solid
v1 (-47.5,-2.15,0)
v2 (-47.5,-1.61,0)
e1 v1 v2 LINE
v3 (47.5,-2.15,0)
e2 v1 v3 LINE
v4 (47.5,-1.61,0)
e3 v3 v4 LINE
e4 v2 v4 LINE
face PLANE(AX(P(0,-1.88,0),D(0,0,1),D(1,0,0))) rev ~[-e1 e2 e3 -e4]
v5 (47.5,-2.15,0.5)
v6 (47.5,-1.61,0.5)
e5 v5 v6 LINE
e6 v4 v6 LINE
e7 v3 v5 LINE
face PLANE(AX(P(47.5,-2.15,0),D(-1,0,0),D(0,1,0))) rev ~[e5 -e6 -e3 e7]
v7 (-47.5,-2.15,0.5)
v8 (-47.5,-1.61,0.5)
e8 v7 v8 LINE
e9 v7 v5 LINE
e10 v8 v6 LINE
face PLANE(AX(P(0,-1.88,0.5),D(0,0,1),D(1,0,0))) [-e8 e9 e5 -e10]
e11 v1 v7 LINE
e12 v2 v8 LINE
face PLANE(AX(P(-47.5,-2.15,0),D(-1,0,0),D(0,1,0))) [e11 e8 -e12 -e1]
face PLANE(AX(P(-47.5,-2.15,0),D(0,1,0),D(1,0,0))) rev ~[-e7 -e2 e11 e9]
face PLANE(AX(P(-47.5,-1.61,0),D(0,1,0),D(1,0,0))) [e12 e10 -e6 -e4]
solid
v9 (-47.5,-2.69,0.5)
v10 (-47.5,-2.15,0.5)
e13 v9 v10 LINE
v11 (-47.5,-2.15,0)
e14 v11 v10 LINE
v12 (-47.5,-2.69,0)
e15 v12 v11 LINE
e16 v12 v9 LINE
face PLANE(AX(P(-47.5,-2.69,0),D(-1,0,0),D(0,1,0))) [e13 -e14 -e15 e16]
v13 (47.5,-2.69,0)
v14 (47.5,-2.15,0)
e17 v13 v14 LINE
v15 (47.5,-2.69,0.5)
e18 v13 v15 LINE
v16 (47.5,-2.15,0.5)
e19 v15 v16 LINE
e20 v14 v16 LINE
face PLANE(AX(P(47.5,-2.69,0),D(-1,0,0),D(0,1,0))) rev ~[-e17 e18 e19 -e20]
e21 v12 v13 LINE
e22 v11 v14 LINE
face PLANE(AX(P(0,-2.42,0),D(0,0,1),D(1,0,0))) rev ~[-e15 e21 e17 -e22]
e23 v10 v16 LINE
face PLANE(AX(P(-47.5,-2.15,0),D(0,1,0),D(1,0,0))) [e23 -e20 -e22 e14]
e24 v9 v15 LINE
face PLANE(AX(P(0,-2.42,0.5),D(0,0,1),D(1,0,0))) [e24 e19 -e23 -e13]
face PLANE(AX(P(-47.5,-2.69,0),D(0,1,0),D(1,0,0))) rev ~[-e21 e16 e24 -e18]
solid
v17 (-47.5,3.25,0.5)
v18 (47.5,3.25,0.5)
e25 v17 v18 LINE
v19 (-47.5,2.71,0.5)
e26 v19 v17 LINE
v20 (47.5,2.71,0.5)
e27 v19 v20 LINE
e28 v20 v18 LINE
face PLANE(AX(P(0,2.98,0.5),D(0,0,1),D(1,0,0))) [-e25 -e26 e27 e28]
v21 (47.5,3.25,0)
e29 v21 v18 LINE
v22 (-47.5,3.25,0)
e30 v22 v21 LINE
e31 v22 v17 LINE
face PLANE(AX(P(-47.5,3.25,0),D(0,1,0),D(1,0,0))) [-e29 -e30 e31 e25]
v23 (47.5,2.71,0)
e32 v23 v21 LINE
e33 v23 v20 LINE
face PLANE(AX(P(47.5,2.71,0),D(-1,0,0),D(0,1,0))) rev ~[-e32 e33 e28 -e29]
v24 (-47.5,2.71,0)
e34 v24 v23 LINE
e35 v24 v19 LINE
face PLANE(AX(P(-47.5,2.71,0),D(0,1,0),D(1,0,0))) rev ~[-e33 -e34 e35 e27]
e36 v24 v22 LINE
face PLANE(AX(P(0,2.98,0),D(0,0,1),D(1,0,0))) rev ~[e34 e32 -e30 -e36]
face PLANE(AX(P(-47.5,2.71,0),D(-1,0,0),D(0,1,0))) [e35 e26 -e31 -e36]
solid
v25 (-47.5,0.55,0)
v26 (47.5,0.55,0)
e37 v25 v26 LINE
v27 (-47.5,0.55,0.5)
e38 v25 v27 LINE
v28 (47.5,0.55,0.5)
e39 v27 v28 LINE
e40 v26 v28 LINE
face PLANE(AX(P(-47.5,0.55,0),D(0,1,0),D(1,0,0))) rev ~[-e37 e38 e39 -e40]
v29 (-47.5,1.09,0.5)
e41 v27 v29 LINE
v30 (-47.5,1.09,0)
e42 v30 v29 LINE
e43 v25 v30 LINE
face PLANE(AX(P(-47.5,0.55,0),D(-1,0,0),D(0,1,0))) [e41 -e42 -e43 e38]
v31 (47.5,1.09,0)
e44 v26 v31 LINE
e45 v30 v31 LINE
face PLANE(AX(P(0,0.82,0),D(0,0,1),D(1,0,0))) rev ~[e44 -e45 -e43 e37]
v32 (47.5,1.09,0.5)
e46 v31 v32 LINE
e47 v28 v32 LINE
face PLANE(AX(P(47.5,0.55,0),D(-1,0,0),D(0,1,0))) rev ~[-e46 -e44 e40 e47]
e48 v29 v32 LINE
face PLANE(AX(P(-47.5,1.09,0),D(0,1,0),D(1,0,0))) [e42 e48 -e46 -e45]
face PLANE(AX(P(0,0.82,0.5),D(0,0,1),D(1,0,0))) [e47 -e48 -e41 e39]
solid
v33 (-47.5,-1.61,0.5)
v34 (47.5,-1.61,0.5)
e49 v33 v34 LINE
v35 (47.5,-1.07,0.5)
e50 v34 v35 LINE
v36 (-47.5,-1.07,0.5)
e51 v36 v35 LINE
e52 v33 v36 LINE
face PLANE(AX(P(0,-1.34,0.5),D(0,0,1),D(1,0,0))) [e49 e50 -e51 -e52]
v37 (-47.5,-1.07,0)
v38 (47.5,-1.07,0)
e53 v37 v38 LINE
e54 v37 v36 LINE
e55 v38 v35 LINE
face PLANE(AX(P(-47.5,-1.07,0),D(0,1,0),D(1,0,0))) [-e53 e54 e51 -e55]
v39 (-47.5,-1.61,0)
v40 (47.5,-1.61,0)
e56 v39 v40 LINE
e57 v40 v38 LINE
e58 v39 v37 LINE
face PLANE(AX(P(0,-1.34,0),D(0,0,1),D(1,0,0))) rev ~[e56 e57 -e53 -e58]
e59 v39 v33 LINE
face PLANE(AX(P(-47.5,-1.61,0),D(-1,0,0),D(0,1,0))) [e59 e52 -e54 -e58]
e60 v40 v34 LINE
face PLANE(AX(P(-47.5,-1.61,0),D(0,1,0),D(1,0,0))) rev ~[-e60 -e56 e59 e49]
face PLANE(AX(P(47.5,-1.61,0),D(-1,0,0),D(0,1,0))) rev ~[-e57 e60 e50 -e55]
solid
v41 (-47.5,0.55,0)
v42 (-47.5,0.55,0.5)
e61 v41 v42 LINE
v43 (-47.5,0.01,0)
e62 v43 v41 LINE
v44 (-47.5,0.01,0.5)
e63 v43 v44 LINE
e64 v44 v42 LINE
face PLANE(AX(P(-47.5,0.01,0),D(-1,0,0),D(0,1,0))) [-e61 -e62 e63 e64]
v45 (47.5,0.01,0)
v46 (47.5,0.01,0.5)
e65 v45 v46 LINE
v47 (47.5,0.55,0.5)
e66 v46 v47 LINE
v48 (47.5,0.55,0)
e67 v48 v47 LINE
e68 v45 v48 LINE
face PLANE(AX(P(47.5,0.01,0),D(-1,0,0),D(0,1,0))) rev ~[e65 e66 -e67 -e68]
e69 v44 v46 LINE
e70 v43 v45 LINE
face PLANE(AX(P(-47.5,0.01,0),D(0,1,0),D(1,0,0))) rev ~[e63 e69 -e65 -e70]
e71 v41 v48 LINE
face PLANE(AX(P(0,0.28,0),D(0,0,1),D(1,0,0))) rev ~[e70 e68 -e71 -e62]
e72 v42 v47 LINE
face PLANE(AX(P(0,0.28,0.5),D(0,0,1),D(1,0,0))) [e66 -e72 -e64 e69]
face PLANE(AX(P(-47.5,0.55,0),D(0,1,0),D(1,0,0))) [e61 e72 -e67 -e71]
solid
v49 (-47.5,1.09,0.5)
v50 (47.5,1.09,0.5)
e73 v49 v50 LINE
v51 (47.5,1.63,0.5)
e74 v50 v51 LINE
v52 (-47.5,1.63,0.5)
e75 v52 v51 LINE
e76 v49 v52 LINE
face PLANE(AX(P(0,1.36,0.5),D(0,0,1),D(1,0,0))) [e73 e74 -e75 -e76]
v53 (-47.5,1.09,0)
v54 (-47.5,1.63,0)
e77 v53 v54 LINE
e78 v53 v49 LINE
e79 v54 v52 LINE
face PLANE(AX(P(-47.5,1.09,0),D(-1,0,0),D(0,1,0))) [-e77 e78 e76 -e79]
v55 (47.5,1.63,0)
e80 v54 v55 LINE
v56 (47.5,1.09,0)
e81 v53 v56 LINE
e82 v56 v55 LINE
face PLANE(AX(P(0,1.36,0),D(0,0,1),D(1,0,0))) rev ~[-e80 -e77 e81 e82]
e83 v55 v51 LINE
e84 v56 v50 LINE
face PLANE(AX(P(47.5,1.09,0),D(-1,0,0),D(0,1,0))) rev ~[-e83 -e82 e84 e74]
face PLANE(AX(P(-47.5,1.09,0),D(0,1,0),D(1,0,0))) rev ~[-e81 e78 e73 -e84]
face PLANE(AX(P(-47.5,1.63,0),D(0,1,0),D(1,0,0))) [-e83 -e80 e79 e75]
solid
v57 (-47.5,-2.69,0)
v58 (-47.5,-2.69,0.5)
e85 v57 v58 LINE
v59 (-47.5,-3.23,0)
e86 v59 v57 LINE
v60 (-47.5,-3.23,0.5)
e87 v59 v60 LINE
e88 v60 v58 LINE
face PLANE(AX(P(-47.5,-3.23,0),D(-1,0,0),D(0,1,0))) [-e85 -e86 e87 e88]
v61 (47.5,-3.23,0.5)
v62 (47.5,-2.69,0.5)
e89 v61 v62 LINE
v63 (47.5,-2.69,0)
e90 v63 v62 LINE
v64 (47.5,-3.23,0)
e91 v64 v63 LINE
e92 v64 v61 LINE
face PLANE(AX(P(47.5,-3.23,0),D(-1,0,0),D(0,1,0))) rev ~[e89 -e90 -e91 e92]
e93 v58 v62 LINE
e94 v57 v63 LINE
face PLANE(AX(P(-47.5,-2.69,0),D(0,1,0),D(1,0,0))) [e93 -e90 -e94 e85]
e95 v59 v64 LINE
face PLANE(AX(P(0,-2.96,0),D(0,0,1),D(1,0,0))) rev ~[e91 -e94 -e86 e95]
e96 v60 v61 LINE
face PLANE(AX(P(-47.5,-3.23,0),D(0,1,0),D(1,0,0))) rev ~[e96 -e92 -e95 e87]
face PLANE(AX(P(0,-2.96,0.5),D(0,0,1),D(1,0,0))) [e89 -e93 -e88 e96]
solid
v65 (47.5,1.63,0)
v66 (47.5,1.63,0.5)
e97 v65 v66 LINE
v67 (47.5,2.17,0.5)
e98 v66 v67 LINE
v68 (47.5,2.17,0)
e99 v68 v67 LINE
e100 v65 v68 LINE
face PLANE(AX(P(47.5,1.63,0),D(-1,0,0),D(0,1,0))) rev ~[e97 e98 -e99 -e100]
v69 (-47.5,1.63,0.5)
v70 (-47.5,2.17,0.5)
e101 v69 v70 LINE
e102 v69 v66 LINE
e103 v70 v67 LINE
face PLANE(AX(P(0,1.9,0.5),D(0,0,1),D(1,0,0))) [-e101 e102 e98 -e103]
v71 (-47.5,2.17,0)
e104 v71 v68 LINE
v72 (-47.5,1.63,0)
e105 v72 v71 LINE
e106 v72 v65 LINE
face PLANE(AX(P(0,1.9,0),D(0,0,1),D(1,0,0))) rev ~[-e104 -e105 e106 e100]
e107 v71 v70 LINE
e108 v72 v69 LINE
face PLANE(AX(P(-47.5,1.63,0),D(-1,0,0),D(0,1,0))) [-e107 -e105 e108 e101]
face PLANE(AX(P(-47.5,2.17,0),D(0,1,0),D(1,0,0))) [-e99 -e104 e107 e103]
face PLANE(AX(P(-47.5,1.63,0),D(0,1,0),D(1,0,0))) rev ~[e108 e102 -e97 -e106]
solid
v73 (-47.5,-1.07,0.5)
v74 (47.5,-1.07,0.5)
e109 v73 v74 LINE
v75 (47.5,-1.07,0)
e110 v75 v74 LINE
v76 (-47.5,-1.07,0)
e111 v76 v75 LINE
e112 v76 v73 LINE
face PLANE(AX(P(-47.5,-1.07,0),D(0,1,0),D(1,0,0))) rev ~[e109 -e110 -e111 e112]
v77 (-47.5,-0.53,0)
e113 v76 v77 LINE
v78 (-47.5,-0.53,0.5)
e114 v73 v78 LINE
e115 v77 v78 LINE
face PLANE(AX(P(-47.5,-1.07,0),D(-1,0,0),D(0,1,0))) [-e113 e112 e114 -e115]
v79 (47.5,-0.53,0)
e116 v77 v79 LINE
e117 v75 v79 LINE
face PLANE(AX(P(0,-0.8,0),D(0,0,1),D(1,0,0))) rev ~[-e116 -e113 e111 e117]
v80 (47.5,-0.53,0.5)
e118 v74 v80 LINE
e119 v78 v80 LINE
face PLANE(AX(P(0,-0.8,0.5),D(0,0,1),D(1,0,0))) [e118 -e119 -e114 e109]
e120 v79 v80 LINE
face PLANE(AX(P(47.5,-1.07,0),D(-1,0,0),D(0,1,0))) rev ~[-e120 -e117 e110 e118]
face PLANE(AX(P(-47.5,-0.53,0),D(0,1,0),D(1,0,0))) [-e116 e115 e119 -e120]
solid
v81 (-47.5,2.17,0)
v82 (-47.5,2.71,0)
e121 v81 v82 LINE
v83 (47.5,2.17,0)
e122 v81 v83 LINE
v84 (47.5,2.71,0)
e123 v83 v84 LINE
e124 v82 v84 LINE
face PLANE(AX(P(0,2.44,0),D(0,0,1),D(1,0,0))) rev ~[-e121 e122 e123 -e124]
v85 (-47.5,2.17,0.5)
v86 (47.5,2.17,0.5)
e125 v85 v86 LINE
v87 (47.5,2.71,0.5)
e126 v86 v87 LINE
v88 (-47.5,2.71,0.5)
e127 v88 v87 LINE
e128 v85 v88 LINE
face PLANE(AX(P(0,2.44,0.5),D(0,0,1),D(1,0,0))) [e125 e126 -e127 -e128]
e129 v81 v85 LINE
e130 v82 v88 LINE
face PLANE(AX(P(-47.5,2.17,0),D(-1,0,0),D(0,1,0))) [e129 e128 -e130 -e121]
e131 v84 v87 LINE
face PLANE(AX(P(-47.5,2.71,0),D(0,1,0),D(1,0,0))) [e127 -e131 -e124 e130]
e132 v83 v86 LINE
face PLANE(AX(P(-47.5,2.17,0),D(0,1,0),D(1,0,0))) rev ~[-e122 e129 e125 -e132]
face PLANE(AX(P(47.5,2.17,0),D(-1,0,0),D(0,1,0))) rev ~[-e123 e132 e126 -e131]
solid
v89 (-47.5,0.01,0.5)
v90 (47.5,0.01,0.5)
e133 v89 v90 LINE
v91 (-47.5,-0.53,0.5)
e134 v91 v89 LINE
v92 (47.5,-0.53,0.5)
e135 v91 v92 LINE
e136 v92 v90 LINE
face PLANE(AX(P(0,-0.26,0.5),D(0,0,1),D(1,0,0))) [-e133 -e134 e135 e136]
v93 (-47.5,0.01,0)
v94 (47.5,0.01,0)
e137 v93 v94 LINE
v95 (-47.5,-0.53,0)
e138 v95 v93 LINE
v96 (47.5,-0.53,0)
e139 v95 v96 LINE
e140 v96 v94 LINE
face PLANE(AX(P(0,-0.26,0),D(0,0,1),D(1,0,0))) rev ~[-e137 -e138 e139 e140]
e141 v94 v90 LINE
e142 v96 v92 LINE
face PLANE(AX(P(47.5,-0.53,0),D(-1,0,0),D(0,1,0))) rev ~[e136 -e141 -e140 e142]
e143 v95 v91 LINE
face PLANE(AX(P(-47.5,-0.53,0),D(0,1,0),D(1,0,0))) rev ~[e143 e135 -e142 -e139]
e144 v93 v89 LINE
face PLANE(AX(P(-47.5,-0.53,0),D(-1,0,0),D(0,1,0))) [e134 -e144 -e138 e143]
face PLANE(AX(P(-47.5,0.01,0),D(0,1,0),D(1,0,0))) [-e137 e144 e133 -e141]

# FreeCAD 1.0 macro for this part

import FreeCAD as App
import Part
import Sketcher
from FreeCAD import Vector

doc = App.newDocument("Part")
body = doc.addObject("PartDesign::Body", "Body")
body.AllowCompound = True

# Sketch on XY plane
sketch1 = body.newObject("Sketcher::SketchObject", "Sketch")
sketch1.AttachmentSupport = (doc.getObject("XY_Plane"), [""])
sketch1.MapMode = "FlatFace"
sketch1.addGeometry([
    Part.LineSegment(Vector(-47.5, 3.2, 0), Vector(-47.5, 2.7, 0)),  # 0
    Part.LineSegment(Vector(-47.5, 2.7, 0), Vector(47.5, 2.7, 0)),  # 1
    Part.LineSegment(Vector(47.5, 2.7, 0), Vector(47.5, 3.2, 0)),  # 2
    Part.LineSegment(Vector(47.5, 3.2, 0), Vector(-47.5, 3.2, 0)),  # 3
    Part.LineSegment(Vector(-47.5, 2.2, 0), Vector(-47.5, 1.6, 0)),  # 4
    Part.LineSegment(Vector(-47.5, 1.6, 0), Vector(47.5, 1.6, 0)),  # 5
    Part.LineSegment(Vector(47.5, 1.6, 0), Vector(47.5, 2.2, 0)),  # 6
    Part.LineSegment(Vector(47.5, 2.2, 0), Vector(-47.5, 2.2, 0)),  # 7
    Part.LineSegment(Vector(-47.5, 1.1, 0), Vector(-47.5, 0.6, 0)),  # 8
    Part.LineSegment(Vector(-47.5, 0.6, 0), Vector(47.5, 0.6, 0)),  # 9
    Part.LineSegment(Vector(47.5, 0.6, 0), Vector(47.5, 1.1, 0)),  # 10
    Part.LineSegment(Vector(47.5, 1.1, 0), Vector(-47.5, 1.1, 0)),  # 11
    Part.LineSegment(Vector(-47.5, 0, 0), Vector(-47.5, -0.5, 0)),  # 12
    Part.LineSegment(Vector(-47.5, -0.5, 0), Vector(47.5, -0.5, 0)),  # 13
    Part.LineSegment(Vector(47.5, -0.5, 0), Vector(47.5, 0, 0)),  # 14
    Part.LineSegment(Vector(47.5, 0, 0), Vector(-47.5, 0, 0)),  # 15
    Part.LineSegment(Vector(-47.5, -1.1, 0), Vector(-47.5, -1.6, 0)),  # 16
    Part.LineSegment(Vector(-47.5, -1.6, 0), Vector(47.5, -1.6, 0)),  # 17
    Part.LineSegment(Vector(47.5, -1.6, 0), Vector(47.5, -1.1, 0)),  # 18
    Part.LineSegment(Vector(47.5, -1.1, 0), Vector(-47.5, -1.1, 0)),  # 19
    Part.LineSegment(Vector(-47.5, -2.1, 0), Vector(-47.5, -2.7, 0)),  # 20
    Part.LineSegment(Vector(-47.5, -2.7, 0), Vector(47.5, -2.7, 0)),  # 21
    Part.LineSegment(Vector(47.5, -2.7, 0), Vector(47.5, -2.1, 0)),  # 22
    Part.LineSegment(Vector(47.5, -2.1, 0), Vector(-47.5, -2.1, 0)),  # 23
], False)
sketch1.addConstraint([
    Sketcher.Constraint("Coincident", 0, 2, 1, 1),
    Sketcher.Constraint("Coincident", 1, 2, 2, 1),
    Sketcher.Constraint("Coincident", 2, 2, 3, 1),
    Sketcher.Constraint("Coincident", 3, 2, 0, 1),
    Sketcher.Constraint("Coincident", 4, 2, 5, 1),
    Sketcher.Constraint("Coincident", 5, 2, 6, 1),
    Sketcher.Constraint("Coincident", 6, 2, 7, 1),
    Sketcher.Constraint("Coincident", 7, 2, 4, 1),
    Sketcher.Constraint("Coincident", 8, 2, 9, 1),
    Sketcher.Constraint("Coincident", 9, 2, 10, 1),
    Sketcher.Constraint("Coincident", 10, 2, 11, 1),
    Sketcher.Constraint("Coincident", 11, 2, 8, 1),
    Sketcher.Constraint("Coincident", 12, 2, 13, 1),
    Sketcher.Constraint("Coincident", 13, 2, 14, 1),
    Sketcher.Constraint("Coincident", 14, 2, 15, 1),
    Sketcher.Constraint("Coincident", 15, 2, 12, 1),
    Sketcher.Constraint("Coincident", 16, 2, 17, 1),
    Sketcher.Constraint("Coincident", 17, 2, 18, 1),
    Sketcher.Constraint("Coincident", 18, 2, 19, 1),
    Sketcher.Constraint("Coincident", 19, 2, 16, 1),
    Sketcher.Constraint("Coincident", 20, 2, 21, 1),
    Sketcher.Constraint("Coincident", 21, 2, 22, 1),
    Sketcher.Constraint("Coincident", 22, 2, 23, 1),
    Sketcher.Constraint("Coincident", 23, 2, 20, 1),
    Sketcher.Constraint("Vertical", 0),
    Sketcher.Constraint("Horizontal", 1),
    Sketcher.Constraint("Vertical", 2),
    Sketcher.Constraint("Horizontal", 3),
    Sketcher.Constraint("Vertical", 4),
    Sketcher.Constraint("Horizontal", 5),
    Sketcher.Constraint("Vertical", 6),
    Sketcher.Constraint("Horizontal", 7),
    Sketcher.Constraint("Vertical", 8),
    Sketcher.Constraint("Horizontal", 9),
    Sketcher.Constraint("Vertical", 10),
    Sketcher.Constraint("Horizontal", 11),
    Sketcher.Constraint("Vertical", 12),
    Sketcher.Constraint("Horizontal", 13),
    Sketcher.Constraint("Vertical", 14),
    Sketcher.Constraint("Horizontal", 15),
    Sketcher.Constraint("Vertical", 16),
    Sketcher.Constraint("Horizontal", 17),
    Sketcher.Constraint("Vertical", 18),
    Sketcher.Constraint("Horizontal", 19),
    Sketcher.Constraint("Vertical", 20),
    Sketcher.Constraint("Horizontal", 21),
    Sketcher.Constraint("Vertical", 22),
    Sketcher.Constraint("Horizontal", 23),
    Sketcher.Constraint("Vertical", 3, 2, 4, 2),
    Sketcher.Constraint("Vertical", 2, 2, 5, 2),
    Sketcher.Constraint("Vertical", 7, 2, 8, 2),
    Sketcher.Constraint("Vertical", 6, 2, 9, 2),
    Sketcher.Constraint("Vertical", 11, 2, 12, 2),
    Sketcher.Constraint("Vertical", 10, 2, 13, 2),
    Sketcher.Constraint("Vertical", 15, 2, 16, 2),
    Sketcher.Constraint("Vertical", 14, 2, 17, 2),
    Sketcher.Constraint("Vertical", 19, 2, 20, 2),
    Sketcher.Constraint("Vertical", 18, 2, 21, 2),
    Sketcher.Constraint("Equal", 2, 4),
    Sketcher.Constraint("Equal", 6, 8),
    Sketcher.Constraint("Equal", 10, 12),
    Sketcher.Constraint("Equal", 14, 16),
    Sketcher.Constraint("Equal", 18, 20),
    Sketcher.Constraint("DistanceX", 1, 1, 1, 2, 95.0),
    Sketcher.Constraint("DistanceY", 0, 2, 0, 1, 0.54),
    Sketcher.Constraint("DistanceX", 0, 2, -1, 1, 47.5),
    Sketcher.Constraint("DistanceY", 8, 2, 3, 2, 2.7),
    Sketcher.Constraint("DistanceY", 12, 2, 7, 2, 2.7),
    Sketcher.Constraint("DistanceY", 16, 2, 11, 2, 2.7),
    Sketcher.Constraint("DistanceY", 20, 2, 15, 2, 2.7),
    Sketcher.Constraint("DistanceY", -1, 1, 0, 2, 2.71),
    Sketcher.Constraint("DistanceY", -1, 1, 4, 2, 1.63),
])
pad1 = body.newObject("PartDesign::Pad", "Pad")
pad1.Profile = sketch1
pad1.Length = 0.5
body2 = doc.addObject("PartDesign::Body", "Body001")
body2.AllowCompound = True

# Sketch on XY plane
sketch2 = body2.newObject("Sketcher::SketchObject", "Sketch001")
sketch2.AttachmentSupport = (doc.getObject("XY_Plane001"), [""])
sketch2.MapMode = "FlatFace"
sketch2.addGeometry([
    Part.LineSegment(Vector(-47.5, 2.7, 0), Vector(-47.5, 2.2, 0)),  # 0
    Part.LineSegment(Vector(-47.5, 2.2, 0), Vector(47.5, 2.2, 0)),  # 1
    Part.LineSegment(Vector(47.5, 2.2, 0), Vector(47.5, 2.7, 0)),  # 2
    Part.LineSegment(Vector(47.5, 2.7, 0), Vector(-47.5, 2.7, 0)),  # 3
    Part.LineSegment(Vector(-47.5, 1.6, 0), Vector(-47.5, 1.1, 0)),  # 4
    Part.LineSegment(Vector(-47.5, 1.1, 0), Vector(47.5, 1.1, 0)),  # 5
    Part.LineSegment(Vector(47.5, 1.1, 0), Vector(47.5, 1.6, 0)),  # 6
    Part.LineSegment(Vector(47.5, 1.6, 0), Vector(-47.5, 1.6, 0)),  # 7
    Part.LineSegment(Vector(-47.5, 0.6, 0), Vector(-47.5, 0, 0)),  # 8
    Part.LineSegment(Vector(-47.5, 0, 0), Vector(47.5, 0, 0)),  # 9
    Part.LineSegment(Vector(47.5, 0, 0), Vector(47.5, 0.6, 0)),  # 10
    Part.LineSegment(Vector(47.5, 0.6, 0), Vector(-47.5, 0.6, 0)),  # 11
    Part.LineSegment(Vector(-47.5, -0.5, 0), Vector(-47.5, -1.1, 0)),  # 12
    Part.LineSegment(Vector(-47.5, -1.1, 0), Vector(47.5, -1.1, 0)),  # 13
    Part.LineSegment(Vector(47.5, -1.1, 0), Vector(47.5, -0.5, 0)),  # 14
    Part.LineSegment(Vector(47.5, -0.5, 0), Vector(-47.5, -0.5, 0)),  # 15
    Part.LineSegment(Vector(-47.5, -1.6, 0), Vector(-47.5, -2.1, 0)),  # 16
    Part.LineSegment(Vector(-47.5, -2.1, 0), Vector(47.5, -2.1, 0)),  # 17
    Part.LineSegment(Vector(47.5, -2.1, 0), Vector(47.5, -1.6, 0)),  # 18
    Part.LineSegment(Vector(47.5, -1.6, 0), Vector(-47.5, -1.6, 0)),  # 19
    Part.LineSegment(Vector(-47.5, -2.7, 0), Vector(-47.5, -3.2, 0)),  # 20
    Part.LineSegment(Vector(-47.5, -3.2, 0), Vector(47.5, -3.2, 0)),  # 21
    Part.LineSegment(Vector(47.5, -3.2, 0), Vector(47.5, -2.7, 0)),  # 22
    Part.LineSegment(Vector(47.5, -2.7, 0), Vector(-47.5, -2.7, 0)),  # 23
], False)
sketch2.addConstraint([
    Sketcher.Constraint("Coincident", 0, 2, 1, 1),
    Sketcher.Constraint("Coincident", 1, 2, 2, 1),
    Sketcher.Constraint("Coincident", 2, 2, 3, 1),
    Sketcher.Constraint("Coincident", 3, 2, 0, 1),
    Sketcher.Constraint("Coincident", 4, 2, 5, 1),
    Sketcher.Constraint("Coincident", 5, 2, 6, 1),
    Sketcher.Constraint("Coincident", 6, 2, 7, 1),
    Sketcher.Constraint("Coincident", 7, 2, 4, 1),
    Sketcher.Constraint("Coincident", 8, 2, 9, 1),
    Sketcher.Constraint("Coincident", 9, 2, 10, 1),
    Sketcher.Constraint("Coincident", 10, 2, 11, 1),
    Sketcher.Constraint("Coincident", 11, 2, 8, 1),
    Sketcher.Constraint("Coincident", 12, 2, 13, 1),
    Sketcher.Constraint("Coincident", 13, 2, 14, 1),
    Sketcher.Constraint("Coincident", 14, 2, 15, 1),
    Sketcher.Constraint("Coincident", 15, 2, 12, 1),
    Sketcher.Constraint("Coincident", 16, 2, 17, 1),
    Sketcher.Constraint("Coincident", 17, 2, 18, 1),
    Sketcher.Constraint("Coincident", 18, 2, 19, 1),
    Sketcher.Constraint("Coincident", 19, 2, 16, 1),
    Sketcher.Constraint("Coincident", 20, 2, 21, 1),
    Sketcher.Constraint("Coincident", 21, 2, 22, 1),
    Sketcher.Constraint("Coincident", 22, 2, 23, 1),
    Sketcher.Constraint("Coincident", 23, 2, 20, 1),
    Sketcher.Constraint("Vertical", 0),
    Sketcher.Constraint("Horizontal", 1),
    Sketcher.Constraint("Vertical", 2),
    Sketcher.Constraint("Horizontal", 3),
    Sketcher.Constraint("Vertical", 4),
    Sketcher.Constraint("Horizontal", 5),
    Sketcher.Constraint("Vertical", 6),
    Sketcher.Constraint("Horizontal", 7),
    Sketcher.Constraint("Vertical", 8),
    Sketcher.Constraint("Horizontal", 9),
    Sketcher.Constraint("Vertical", 10),
    Sketcher.Constraint("Horizontal", 11),
    Sketcher.Constraint("Vertical", 12),
    Sketcher.Constraint("Horizontal", 13),
    Sketcher.Constraint("Vertical", 14),
    Sketcher.Constraint("Horizontal", 15),
    Sketcher.Constraint("Vertical", 16),
    Sketcher.Constraint("Horizontal", 17),
    Sketcher.Constraint("Vertical", 18),
    Sketcher.Constraint("Horizontal", 19),
    Sketcher.Constraint("Vertical", 20),
    Sketcher.Constraint("Horizontal", 21),
    Sketcher.Constraint("Vertical", 22),
    Sketcher.Constraint("Horizontal", 23),
    Sketcher.Constraint("Vertical", 3, 2, 4, 2),
    Sketcher.Constraint("Vertical", 2, 2, 5, 2),
    Sketcher.Constraint("Vertical", 7, 2, 8, 2),
    Sketcher.Constraint("Vertical", 6, 2, 9, 2),
    Sketcher.Constraint("Vertical", 11, 2, 12, 2),
    Sketcher.Constraint("Vertical", 10, 2, 13, 2),
    Sketcher.Constraint("Vertical", 15, 2, 16, 2),
    Sketcher.Constraint("Vertical", 14, 2, 17, 2),
    Sketcher.Constraint("Vertical", 19, 2, 20, 2),
    Sketcher.Constraint("Vertical", 18, 2, 21, 2),
    Sketcher.Constraint("Equal", 2, 4),
    Sketcher.Constraint("Equal", 6, 8),
    Sketcher.Constraint("Equal", 10, 12),
    Sketcher.Constraint("Equal", 14, 16),
    Sketcher.Constraint("Equal", 18, 20),
    Sketcher.Constraint("DistanceX", 1, 1, 1, 2, 95.0),
    Sketcher.Constraint("DistanceY", 0, 2, 0, 1, 0.54),
    Sketcher.Constraint("DistanceX", 0, 2, -1, 1, 47.5),
    Sketcher.Constraint("DistanceY", 8, 2, 3, 2, 2.7),
    Sketcher.Constraint("DistanceY", 12, 2, 7, 2, 2.7),
    Sketcher.Constraint("DistanceY", 16, 2, 11, 2, 2.7),
    Sketcher.Constraint("DistanceY", 20, 2, 15, 2, 2.7),
    Sketcher.Constraint("DistanceY", -1, 1, 0, 2, 2.17),
    Sketcher.Constraint("DistanceY", -1, 1, 4, 2, 1.09),
])
pad2 = body2.newObject("PartDesign::Pad", "Pad001")
pad2.Profile = sketch2
pad2.Length = 0.5

doc.recompute()
